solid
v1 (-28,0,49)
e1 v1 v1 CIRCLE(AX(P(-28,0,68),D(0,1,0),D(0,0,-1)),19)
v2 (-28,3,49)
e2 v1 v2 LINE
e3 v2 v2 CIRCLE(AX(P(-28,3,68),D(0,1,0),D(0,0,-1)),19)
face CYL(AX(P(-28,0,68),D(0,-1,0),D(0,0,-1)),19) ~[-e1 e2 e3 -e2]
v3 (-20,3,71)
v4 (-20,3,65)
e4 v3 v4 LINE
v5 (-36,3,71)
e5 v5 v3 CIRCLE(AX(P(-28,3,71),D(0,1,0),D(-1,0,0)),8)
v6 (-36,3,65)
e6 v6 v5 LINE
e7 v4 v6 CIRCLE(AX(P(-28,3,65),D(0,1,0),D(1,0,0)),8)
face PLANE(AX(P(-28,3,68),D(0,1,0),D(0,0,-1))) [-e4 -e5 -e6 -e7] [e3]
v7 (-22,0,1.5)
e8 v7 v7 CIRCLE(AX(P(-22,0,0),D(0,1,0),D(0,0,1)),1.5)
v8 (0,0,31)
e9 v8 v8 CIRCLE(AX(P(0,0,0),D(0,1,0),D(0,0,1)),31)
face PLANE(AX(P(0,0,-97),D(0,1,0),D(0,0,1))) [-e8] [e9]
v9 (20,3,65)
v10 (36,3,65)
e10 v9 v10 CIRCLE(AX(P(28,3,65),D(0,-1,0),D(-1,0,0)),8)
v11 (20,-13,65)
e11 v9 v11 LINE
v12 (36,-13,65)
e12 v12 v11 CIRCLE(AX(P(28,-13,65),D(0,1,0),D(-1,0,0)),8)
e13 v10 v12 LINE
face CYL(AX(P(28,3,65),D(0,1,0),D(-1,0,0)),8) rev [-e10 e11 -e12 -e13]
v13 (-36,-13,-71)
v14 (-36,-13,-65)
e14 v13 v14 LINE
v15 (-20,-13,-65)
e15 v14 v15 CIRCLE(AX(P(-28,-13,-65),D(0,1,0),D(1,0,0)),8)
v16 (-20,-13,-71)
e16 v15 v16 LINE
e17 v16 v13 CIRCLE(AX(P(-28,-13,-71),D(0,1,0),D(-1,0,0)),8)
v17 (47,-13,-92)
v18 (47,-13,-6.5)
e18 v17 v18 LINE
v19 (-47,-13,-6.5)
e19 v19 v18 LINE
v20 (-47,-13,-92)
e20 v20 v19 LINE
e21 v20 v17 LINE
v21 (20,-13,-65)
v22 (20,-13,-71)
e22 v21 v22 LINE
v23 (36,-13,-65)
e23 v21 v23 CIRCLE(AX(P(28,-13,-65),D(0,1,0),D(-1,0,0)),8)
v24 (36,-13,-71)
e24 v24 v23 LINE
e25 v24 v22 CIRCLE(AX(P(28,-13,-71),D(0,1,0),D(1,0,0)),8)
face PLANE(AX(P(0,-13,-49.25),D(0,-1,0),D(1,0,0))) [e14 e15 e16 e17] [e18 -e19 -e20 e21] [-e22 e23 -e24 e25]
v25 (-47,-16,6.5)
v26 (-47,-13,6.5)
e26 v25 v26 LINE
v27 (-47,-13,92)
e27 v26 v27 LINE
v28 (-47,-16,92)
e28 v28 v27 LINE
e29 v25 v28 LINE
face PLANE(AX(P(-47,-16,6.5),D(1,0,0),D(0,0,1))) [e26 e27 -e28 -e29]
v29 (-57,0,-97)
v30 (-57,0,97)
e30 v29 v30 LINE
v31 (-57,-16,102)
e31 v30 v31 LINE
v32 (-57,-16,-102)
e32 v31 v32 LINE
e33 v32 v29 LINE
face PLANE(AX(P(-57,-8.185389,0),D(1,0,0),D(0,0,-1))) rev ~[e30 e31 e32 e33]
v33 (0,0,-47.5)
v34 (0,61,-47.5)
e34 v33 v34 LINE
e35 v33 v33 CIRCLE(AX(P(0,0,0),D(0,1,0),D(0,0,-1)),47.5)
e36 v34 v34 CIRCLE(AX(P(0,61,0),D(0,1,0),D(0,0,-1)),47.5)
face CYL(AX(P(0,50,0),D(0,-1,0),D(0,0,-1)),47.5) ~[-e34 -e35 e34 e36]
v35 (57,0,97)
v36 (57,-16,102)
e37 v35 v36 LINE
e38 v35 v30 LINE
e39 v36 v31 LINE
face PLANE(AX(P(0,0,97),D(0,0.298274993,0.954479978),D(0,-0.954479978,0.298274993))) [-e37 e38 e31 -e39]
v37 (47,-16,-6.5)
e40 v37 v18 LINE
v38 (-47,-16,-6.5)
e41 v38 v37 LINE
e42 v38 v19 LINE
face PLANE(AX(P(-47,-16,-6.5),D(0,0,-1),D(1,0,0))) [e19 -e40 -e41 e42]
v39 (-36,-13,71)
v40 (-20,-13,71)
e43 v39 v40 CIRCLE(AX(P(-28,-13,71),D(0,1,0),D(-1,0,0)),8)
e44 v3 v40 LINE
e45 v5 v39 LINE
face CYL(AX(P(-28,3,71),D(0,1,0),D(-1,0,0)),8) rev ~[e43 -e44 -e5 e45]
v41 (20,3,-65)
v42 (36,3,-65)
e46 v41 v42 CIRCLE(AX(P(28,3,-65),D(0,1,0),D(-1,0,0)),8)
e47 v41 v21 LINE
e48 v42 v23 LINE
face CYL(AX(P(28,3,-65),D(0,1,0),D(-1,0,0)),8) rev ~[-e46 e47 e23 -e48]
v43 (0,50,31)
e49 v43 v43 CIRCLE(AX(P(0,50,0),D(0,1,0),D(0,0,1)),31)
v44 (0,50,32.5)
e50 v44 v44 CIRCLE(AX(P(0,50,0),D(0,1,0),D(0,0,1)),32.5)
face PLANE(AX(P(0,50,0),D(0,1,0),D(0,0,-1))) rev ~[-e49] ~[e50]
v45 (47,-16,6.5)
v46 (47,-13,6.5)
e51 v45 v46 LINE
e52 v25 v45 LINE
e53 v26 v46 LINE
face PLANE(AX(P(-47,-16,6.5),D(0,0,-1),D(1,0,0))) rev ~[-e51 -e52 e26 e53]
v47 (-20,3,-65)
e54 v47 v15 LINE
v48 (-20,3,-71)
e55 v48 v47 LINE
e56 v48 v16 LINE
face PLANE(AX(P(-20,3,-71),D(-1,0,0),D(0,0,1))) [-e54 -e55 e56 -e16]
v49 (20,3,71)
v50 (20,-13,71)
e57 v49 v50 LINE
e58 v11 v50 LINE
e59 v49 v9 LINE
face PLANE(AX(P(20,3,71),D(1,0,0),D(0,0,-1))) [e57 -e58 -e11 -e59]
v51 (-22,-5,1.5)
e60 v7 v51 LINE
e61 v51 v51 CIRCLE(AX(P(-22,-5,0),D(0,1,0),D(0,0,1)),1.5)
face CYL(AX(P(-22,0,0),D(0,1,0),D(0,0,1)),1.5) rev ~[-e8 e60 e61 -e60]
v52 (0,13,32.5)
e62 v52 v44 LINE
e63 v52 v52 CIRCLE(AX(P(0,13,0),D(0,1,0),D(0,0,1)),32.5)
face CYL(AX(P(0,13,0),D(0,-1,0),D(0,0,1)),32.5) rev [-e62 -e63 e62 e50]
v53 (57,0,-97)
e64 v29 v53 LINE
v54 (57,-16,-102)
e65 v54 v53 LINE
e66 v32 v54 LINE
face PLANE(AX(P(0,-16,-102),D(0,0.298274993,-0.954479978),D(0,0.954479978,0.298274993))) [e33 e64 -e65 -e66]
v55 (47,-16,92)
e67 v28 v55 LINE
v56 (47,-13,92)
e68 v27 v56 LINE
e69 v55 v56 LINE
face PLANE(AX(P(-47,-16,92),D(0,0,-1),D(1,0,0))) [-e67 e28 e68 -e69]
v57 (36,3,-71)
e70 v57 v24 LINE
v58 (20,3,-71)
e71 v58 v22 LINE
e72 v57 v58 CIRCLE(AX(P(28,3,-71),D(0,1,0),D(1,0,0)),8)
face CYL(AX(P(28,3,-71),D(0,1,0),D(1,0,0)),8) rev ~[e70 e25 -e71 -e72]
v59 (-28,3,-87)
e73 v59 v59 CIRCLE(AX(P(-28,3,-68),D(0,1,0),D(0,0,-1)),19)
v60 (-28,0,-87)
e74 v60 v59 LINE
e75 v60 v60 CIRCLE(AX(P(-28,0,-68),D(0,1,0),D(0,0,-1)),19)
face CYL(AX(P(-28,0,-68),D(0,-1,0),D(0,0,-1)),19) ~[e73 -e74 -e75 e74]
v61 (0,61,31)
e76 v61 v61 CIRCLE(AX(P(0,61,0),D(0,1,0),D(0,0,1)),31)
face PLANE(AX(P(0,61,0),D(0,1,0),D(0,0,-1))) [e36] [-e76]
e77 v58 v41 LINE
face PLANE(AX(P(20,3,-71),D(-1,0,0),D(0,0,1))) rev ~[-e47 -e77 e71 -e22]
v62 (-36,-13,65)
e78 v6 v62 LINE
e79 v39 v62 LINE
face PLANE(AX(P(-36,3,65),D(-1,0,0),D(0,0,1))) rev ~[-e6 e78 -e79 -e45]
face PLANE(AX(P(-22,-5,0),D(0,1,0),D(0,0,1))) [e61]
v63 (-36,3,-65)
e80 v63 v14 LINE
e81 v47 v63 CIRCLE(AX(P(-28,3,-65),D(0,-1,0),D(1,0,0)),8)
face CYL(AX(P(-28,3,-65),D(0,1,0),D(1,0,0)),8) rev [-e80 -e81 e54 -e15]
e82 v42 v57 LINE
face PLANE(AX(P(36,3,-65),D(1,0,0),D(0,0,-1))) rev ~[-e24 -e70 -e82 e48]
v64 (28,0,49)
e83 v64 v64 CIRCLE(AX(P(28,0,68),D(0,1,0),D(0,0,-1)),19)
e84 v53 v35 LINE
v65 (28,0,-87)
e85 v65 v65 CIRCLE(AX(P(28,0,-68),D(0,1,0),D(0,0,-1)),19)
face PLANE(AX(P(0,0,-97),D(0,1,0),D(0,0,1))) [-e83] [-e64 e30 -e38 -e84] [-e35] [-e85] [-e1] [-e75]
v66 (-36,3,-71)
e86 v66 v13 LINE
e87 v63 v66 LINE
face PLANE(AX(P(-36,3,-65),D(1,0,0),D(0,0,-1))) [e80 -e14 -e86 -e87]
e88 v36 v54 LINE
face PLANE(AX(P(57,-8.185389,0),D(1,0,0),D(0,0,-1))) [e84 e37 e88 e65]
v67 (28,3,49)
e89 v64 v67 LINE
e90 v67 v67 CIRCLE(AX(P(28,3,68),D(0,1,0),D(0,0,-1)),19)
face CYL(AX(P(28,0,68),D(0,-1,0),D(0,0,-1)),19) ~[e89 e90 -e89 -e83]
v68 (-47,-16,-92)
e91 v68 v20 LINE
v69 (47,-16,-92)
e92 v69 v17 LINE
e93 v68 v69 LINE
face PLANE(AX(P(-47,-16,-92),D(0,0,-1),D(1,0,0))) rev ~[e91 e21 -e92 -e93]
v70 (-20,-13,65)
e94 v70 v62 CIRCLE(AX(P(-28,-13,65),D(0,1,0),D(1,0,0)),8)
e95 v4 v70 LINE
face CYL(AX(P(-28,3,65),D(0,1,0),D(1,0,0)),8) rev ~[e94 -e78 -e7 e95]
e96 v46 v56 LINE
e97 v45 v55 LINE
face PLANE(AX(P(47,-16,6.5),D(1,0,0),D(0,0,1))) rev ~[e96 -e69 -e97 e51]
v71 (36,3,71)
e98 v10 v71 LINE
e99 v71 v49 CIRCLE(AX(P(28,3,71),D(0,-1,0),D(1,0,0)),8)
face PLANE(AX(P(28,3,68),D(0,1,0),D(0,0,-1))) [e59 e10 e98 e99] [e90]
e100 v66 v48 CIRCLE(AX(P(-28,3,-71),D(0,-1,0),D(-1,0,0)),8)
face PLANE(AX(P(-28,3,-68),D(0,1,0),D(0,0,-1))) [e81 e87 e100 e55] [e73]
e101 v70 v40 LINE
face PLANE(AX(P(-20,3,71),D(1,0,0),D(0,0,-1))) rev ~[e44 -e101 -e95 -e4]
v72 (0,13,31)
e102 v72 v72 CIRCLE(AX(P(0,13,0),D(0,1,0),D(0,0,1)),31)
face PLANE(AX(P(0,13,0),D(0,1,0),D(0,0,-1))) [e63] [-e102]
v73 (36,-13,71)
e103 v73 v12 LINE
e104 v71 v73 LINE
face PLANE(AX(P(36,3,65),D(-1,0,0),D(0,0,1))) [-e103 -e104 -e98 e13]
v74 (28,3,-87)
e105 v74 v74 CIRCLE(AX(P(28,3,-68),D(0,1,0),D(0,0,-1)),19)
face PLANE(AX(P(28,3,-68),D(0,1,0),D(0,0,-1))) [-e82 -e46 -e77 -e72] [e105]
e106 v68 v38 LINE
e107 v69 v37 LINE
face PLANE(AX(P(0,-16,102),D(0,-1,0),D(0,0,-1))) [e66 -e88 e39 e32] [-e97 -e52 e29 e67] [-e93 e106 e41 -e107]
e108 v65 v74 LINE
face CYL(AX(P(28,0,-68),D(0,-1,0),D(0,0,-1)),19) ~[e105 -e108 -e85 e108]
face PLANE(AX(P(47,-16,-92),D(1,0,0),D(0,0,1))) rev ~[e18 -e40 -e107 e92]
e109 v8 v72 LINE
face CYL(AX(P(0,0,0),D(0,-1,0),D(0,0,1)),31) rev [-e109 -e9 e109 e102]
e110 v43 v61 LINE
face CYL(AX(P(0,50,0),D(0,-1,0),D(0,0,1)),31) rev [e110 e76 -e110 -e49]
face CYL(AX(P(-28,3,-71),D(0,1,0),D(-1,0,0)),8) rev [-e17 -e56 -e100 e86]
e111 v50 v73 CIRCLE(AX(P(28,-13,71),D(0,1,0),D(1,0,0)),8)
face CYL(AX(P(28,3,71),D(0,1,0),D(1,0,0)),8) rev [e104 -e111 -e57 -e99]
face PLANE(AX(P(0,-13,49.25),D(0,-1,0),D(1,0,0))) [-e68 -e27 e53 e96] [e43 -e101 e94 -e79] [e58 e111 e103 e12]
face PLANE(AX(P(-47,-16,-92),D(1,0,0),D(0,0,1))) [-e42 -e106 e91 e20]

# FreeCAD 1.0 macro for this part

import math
import FreeCAD as App
import Part
import Sketcher

V = App.Vector

doc = App.newDocument("Part")
body = doc.addObject("PartDesign::Body", "Body")

# Sketch on YZ plane
sketch1 = doc.addObject("Sketcher::SketchObject", "Sketch")
body.addObject(sketch1)
sketch1.AttachmentSupport = (doc.YZ_Plane, [""])
sketch1.MapMode = "FlatFace"
sketch1.addGeometry(Part.LineSegment(V(-16, 102, 0), V(-16, -102, 0)), False)
sketch1.addGeometry(Part.LineSegment(V(-16, -102, 0), V(0, -97, 0)), False)
sketch1.addGeometry(Part.LineSegment(V(0, -97, 0), V(0, 97, 0)), False)
sketch1.addGeometry(Part.LineSegment(V(0, 97, 0), V(-16, 102, 0)), False)
sketch1.addConstraint(Sketcher.Constraint("Coincident", 0, 2, 1, 1))
sketch1.addConstraint(Sketcher.Constraint("Coincident", 1, 2, 2, 1))
sketch1.addConstraint(Sketcher.Constraint("Coincident", 2, 2, 3, 1))
sketch1.addConstraint(Sketcher.Constraint("Coincident", 3, 2, 0, 1))
sketch1.addConstraint(Sketcher.Constraint("Vertical", 0))
sketch1.addConstraint(Sketcher.Constraint("Vertical", 2))
sketch1.addConstraint(Sketcher.Constraint("Symmetric", 1, 2, 2, 2, -1, 1))
sketch1.addConstraint(Sketcher.Constraint("Equal", 1, 3))
sketch1.addConstraint(Sketcher.Constraint("DistanceY", 0, 2, 0, 1, 204.0))
sketch1.addConstraint(Sketcher.Constraint("DistanceY", 2, 1, 2, 2, 194.0))
sketch1.addConstraint(Sketcher.Constraint("DistanceX", 0, 2, -1, 1, 16.0))
pad1 = doc.addObject("PartDesign::Pad", "Pad")
body.addObject(pad1)
pad1.Profile = sketch1
pad1.Length = 114
pad1.Midplane = True

# Sketch on XZ plane
sketch2 = doc.addObject("Sketcher::SketchObject", "Sketch001")
body.addObject(sketch2)
sketch2.AttachmentSupport = (doc.XZ_Plane, [""])
sketch2.MapMode = "FlatFace"
sketch2.addGeometry(Part.Circle(V(0, 0, 0), V(0, 0, 1), 47.5), False)
sketch2.addGeometry(Part.Circle(V(0, 0, 0), V(0, 0, 1), 31), False)
sketch2.addConstraint(Sketcher.Constraint("Coincident", 0, 3, -1, 1))
sketch2.addConstraint(Sketcher.Constraint("Coincident", 1, 3, -1, 1))
sketch2.addConstraint(Sketcher.Constraint("Diameter", 0, 95.0))
sketch2.addConstraint(Sketcher.Constraint("Diameter", 1, 62.0))
pad2 = doc.addObject("PartDesign::Pad", "Pad001")
body.addObject(pad2)
pad2.Profile = sketch2
pad2.Length = 13
pad2.Reversed = True

# Sketch on XZ plane
sketch3 = doc.addObject("Sketcher::SketchObject", "Sketch002")
body.addObject(sketch3)
sketch3.AttachmentSupport = (doc.XZ_Plane, [""])
sketch3.MapMode = "FlatFace"
sketch3.AttachmentOffset = App.Placement(V(0, 0, -13), App.Rotation())
sketch3.addGeometry(Part.Circle(V(0, 0, 0), V(0, 0, 1), 47.5), False)
sketch3.addGeometry(Part.Circle(V(0, 0, 0), V(0, 0, 1), 32.5), False)
sketch3.addConstraint(Sketcher.Constraint("Coincident", 0, 3, -1, 1))
sketch3.addConstraint(Sketcher.Constraint("Coincident", 1, 3, -1, 1))
sketch3.addConstraint(Sketcher.Constraint("Diameter", 0, 95.0))
sketch3.addConstraint(Sketcher.Constraint("Diameter", 1, 65.0))
pad3 = doc.addObject("PartDesign::Pad", "Pad002")
body.addObject(pad3)
pad3.Profile = sketch3
pad3.Length = 37
pad3.Reversed = True

# Sketch on XZ plane
sketch4 = doc.addObject("Sketcher::SketchObject", "Sketch003")
body.addObject(sketch4)
sketch4.AttachmentSupport = (doc.XZ_Plane, [""])
sketch4.MapMode = "FlatFace"
sketch4.AttachmentOffset = App.Placement(V(0, 0, -50), App.Rotation())
sketch4.addGeometry(Part.Circle(V(0, 0, 0), V(0, 0, 1), 47.5), False)
sketch4.addGeometry(Part.Circle(V(0, 0, 0), V(0, 0, 1), 31), False)
sketch4.addConstraint(Sketcher.Constraint("Coincident", 0, 3, -1, 1))
sketch4.addConstraint(Sketcher.Constraint("Coincident", 1, 3, -1, 1))
sketch4.addConstraint(Sketcher.Constraint("Diameter", 0, 95.0))
sketch4.addConstraint(Sketcher.Constraint("Diameter", 1, 62.0))
pad4 = doc.addObject("PartDesign::Pad", "Pad003")
body.addObject(pad4)
pad4.Profile = sketch4
pad4.Length = 11
pad4.Reversed = True

# Sketch on XZ plane
sketch5 = doc.addObject("Sketcher::SketchObject", "Sketch004")
body.addObject(sketch5)
sketch5.AttachmentSupport = (doc.XZ_Plane, [""])
sketch5.MapMode = "FlatFace"
sketch5.AttachmentOffset = App.Placement(V(0, 0, 16), App.Rotation())
sketch5.addGeometry(Part.LineSegment(V(-47, 92, 0), V(-47, 6.5, 0)), False)
sketch5.addGeometry(Part.LineSegment(V(-47, 6.5, 0), V(47, 6.5, 0)), False)
sketch5.addGeometry(Part.LineSegment(V(47, 6.5, 0), V(47, 92, 0)), False)
sketch5.addGeometry(Part.LineSegment(V(47, 92, 0), V(-47, 92, 0)), False)
sketch5.addGeometry(Part.LineSegment(V(-47, -6.5, 0), V(-47, -92, 0)), False)
sketch5.addGeometry(Part.LineSegment(V(-47, -92, 0), V(47, -92, 0)), False)
sketch5.addGeometry(Part.LineSegment(V(47, -92, 0), V(47, -6.5, 0)), False)
sketch5.addGeometry(Part.LineSegment(V(47, -6.5, 0), V(-47, -6.5, 0)), False)
sketch5.addConstraint(Sketcher.Constraint("Coincident", 0, 2, 1, 1))
sketch5.addConstraint(Sketcher.Constraint("Coincident", 1, 2, 2, 1))
sketch5.addConstraint(Sketcher.Constraint("Coincident", 2, 2, 3, 1))
sketch5.addConstraint(Sketcher.Constraint("Coincident", 3, 2, 0, 1))
sketch5.addConstraint(Sketcher.Constraint("Coincident", 4, 2, 5, 1))
sketch5.addConstraint(Sketcher.Constraint("Coincident", 5, 2, 6, 1))
sketch5.addConstraint(Sketcher.Constraint("Coincident", 6, 2, 7, 1))
sketch5.addConstraint(Sketcher.Constraint("Coincident", 7, 2, 4, 1))
sketch5.addConstraint(Sketcher.Constraint("Vertical", 0))
sketch5.addConstraint(Sketcher.Constraint("Horizontal", 1))
sketch5.addConstraint(Sketcher.Constraint("Vertical", 2))
sketch5.addConstraint(Sketcher.Constraint("Horizontal", 3))
sketch5.addConstraint(Sketcher.Constraint("Vertical", 4))
sketch5.addConstraint(Sketcher.Constraint("Horizontal", 5))
sketch5.addConstraint(Sketcher.Constraint("Vertical", 6))
sketch5.addConstraint(Sketcher.Constraint("Horizontal", 7))
sketch5.addConstraint(Sketcher.Constraint("Symmetric", 2, 2, 4, 2, -1, 1))
sketch5.addConstraint(Sketcher.Constraint("Symmetric", 0, 2, 6, 2, -1, 1))
sketch5.addConstraint(Sketcher.Constraint("Vertical", 3, 2, 4, 2))
sketch5.addConstraint(Sketcher.Constraint("DistanceX", 1, 1, 1, 2, 94.0))
sketch5.addConstraint(Sketcher.Constraint("DistanceY", 0, 2, 0, 1, 85.5))
sketch5.addConstraint(Sketcher.Constraint("DistanceY", -1, 1, 2, 2, 92.0))
pocket1 = doc.addObject("PartDesign::Pocket", "Pocket")
body.addObject(pocket1)
pocket1.Profile = sketch5
pocket1.Length = 3

# Sketch on XZ plane
sketch6 = doc.addObject("Sketcher::SketchObject", "Sketch005")
body.addObject(sketch6)
sketch6.AttachmentSupport = (doc.XZ_Plane, [""])
sketch6.MapMode = "FlatFace"
sketch6.addGeometry(Part.Circle(V(-28, 68, 0), V(0, 0, 1), 19), False)
sketch6.addGeometry(Part.Circle(V(28, 68, 0), V(0, 0, 1), 19), False)
sketch6.addGeometry(Part.Circle(V(28, -68, 0), V(0, 0, 1), 19), False)
sketch6.addGeometry(Part.Circle(V(-28, -68, 0), V(0, 0, 1), 19), False)
sketch6.addConstraint(Sketcher.Constraint("Equal", 0, 1))
sketch6.addConstraint(Sketcher.Constraint("Equal", 1, 2))
sketch6.addConstraint(Sketcher.Constraint("Equal", 2, 3))
sketch6.addConstraint(Sketcher.Constraint("Symmetric", 0, 3, 2, 3, -1, 1))
sketch6.addConstraint(Sketcher.Constraint("Symmetric", 1, 3, 3, 3, -1, 1))
sketch6.addConstraint(Sketcher.Constraint("Symmetric", 0, 3, 1, 3, -2))
sketch6.addConstraint(Sketcher.Constraint("Diameter", 0, 38.0))
sketch6.addConstraint(Sketcher.Constraint("DistanceX", 0, 3, -1, 1, 28.0))
sketch6.addConstraint(Sketcher.Constraint("DistanceY", -1, 1, 0, 3, 68.0))
pad5 = doc.addObject("PartDesign::Pad", "Pad004")
body.addObject(pad5)
pad5.Profile = sketch6
pad5.Length = 3
pad5.Reversed = True

# Sketch on XZ plane
sketch7 = doc.addObject("Sketcher::SketchObject", "Sketch006")
body.addObject(sketch7)
sketch7.AttachmentSupport = (doc.XZ_Plane, [""])
sketch7.MapMode = "FlatFace"
sketch7.AttachmentOffset = App.Placement(V(0, 0, -3), App.Rotation())
sketch7.addGeometry(Part.LineSegment(V(36, 71, 0), V(36, 65, 0)), False)
sketch7.addGeometry(Part.ArcOfCircle(Part.Circle(V(28, 65, 0), V(0, 0, 1), 8), math.radians(180), math.radians(360)), False)
sketch7.addGeometry(Part.LineSegment(V(20, 65, 0), V(20, 71, 0)), False)
sketch7.addGeometry(Part.ArcOfCircle(Part.Circle(V(28, 71, 0), V(0, 0, 1), 8), math.radians(0), math.radians(180)), False)
sketch7.addGeometry(Part.LineSegment(V(-36, 65, 0), V(-36, 71, 0)), False)
sketch7.addGeometry(Part.ArcOfCircle(Part.Circle(V(-28, 71, 0), V(0, 0, 1), 8), math.radians(0), math.radians(180)), False)
sketch7.addGeometry(Part.LineSegment(V(-20, 71, 0), V(-20, 65, 0)), False)
sketch7.addGeometry(Part.ArcOfCircle(Part.Circle(V(-28, 65, 0), V(0, 0, 1), 8), math.radians(180), math.radians(360)), False)
sketch7.addGeometry(Part.LineSegment(V(36, -65, 0), V(36, -71, 0)), False)
sketch7.addGeometry(Part.ArcOfCircle(Part.Circle(V(28, -71, 0), V(0, 0, 1), 8), math.radians(180), math.radians(360)), False)
sketch7.addGeometry(Part.LineSegment(V(20, -71, 0), V(20, -65, 0)), False)
sketch7.addGeometry(Part.ArcOfCircle(Part.Circle(V(28, -65, 0), V(0, 0, 1), 8), math.radians(0), math.radians(180)), False)
sketch7.addGeometry(Part.LineSegment(V(-36, -71, 0), V(-36, -65, 0)), False)
sketch7.addGeometry(Part.ArcOfCircle(Part.Circle(V(-28, -65, 0), V(0, 0, 1), 8), math.radians(0), math.radians(180)), False)
sketch7.addGeometry(Part.LineSegment(V(-20, -65, 0), V(-20, -71, 0)), False)
sketch7.addGeometry(Part.ArcOfCircle(Part.Circle(V(-28, -71, 0), V(0, 0, 1), 8), math.radians(180), math.radians(360)), False)
sketch7.addConstraint(Sketcher.Constraint("Tangent", 0, 2, 1, 2))
sketch7.addConstraint(Sketcher.Constraint("Tangent", 1, 1, 2, 1))
sketch7.addConstraint(Sketcher.Constraint("Tangent", 2, 2, 3, 2))
sketch7.addConstraint(Sketcher.Constraint("Tangent", 3, 1, 0, 1))
sketch7.addConstraint(Sketcher.Constraint("Tangent", 4, 2, 5, 2))
sketch7.addConstraint(Sketcher.Constraint("Tangent", 5, 1, 6, 1))
sketch7.addConstraint(Sketcher.Constraint("Tangent", 6, 2, 7, 2))
sketch7.addConstraint(Sketcher.Constraint("Tangent", 7, 1, 4, 1))
sketch7.addConstraint(Sketcher.Constraint("Tangent", 8, 2, 9, 2))
sketch7.addConstraint(Sketcher.Constraint("Tangent", 9, 1, 10, 1))
sketch7.addConstraint(Sketcher.Constraint("Tangent", 10, 2, 11, 2))
sketch7.addConstraint(Sketcher.Constraint("Tangent", 11, 1, 8, 1))
sketch7.addConstraint(Sketcher.Constraint("Tangent", 12, 2, 13, 2))
sketch7.addConstraint(Sketcher.Constraint("Tangent", 13, 1, 14, 1))
sketch7.addConstraint(Sketcher.Constraint("Tangent", 14, 2, 15, 2))
sketch7.addConstraint(Sketcher.Constraint("Tangent", 15, 1, 12, 1))
sketch7.addConstraint(Sketcher.Constraint("Vertical", 0))
sketch7.addConstraint(Sketcher.Constraint("Vertical", 2))
sketch7.addConstraint(Sketcher.Constraint("Vertical", 4))
sketch7.addConstraint(Sketcher.Constraint("Vertical", 6))
sketch7.addConstraint(Sketcher.Constraint("Vertical", 8))
sketch7.addConstraint(Sketcher.Constraint("Vertical", 10))
sketch7.addConstraint(Sketcher.Constraint("Vertical", 12))
sketch7.addConstraint(Sketcher.Constraint("Vertical", 14))
sketch7.addConstraint(Sketcher.Constraint("Equal", 3, 5))
sketch7.addConstraint(Sketcher.Constraint("Equal", 7, 9))
sketch7.addConstraint(Sketcher.Constraint("Equal", 11, 13))
sketch7.addConstraint(Sketcher.Constraint("Symmetric", 5, 3, 9, 3, -1, 1))
sketch7.addConstraint(Sketcher.Constraint("Symmetric", 1, 3, 13, 3, -1, 1))
sketch7.addConstraint(Sketcher.Constraint("Symmetric", 3, 3, 5, 3, -2))
sketch7.addConstraint(Sketcher.Constraint("Horizontal", 1, 3, 7, 3))
sketch7.addConstraint(Sketcher.Constraint("Horizontal", 11, 3, 13, 3))
sketch7.addConstraint(Sketcher.Constraint("Horizontal", 9, 3, 15, 3))
sketch7.addConstraint(Sketcher.Constraint("Radius", 1, 8.0))
sketch7.addConstraint(Sketcher.Constraint("DistanceY", 0, 2, 0, 1, 6.0))
sketch7.addConstraint(Sketcher.Constraint("DistanceX", -1, 1, 1, 3, 28.0))
sketch7.addConstraint(Sketcher.Constraint("DistanceY", -1, 1, 1, 3, 65.0))
pocket2 = doc.addObject("PartDesign::Pocket", "Pocket001")
body.addObject(pocket2)
pocket2.Profile = sketch7
pocket2.Type = "ThroughAll"
pocket2.Reversed = True

# Sketch on XZ plane
sketch8 = doc.addObject("Sketcher::SketchObject", "Sketch007")
body.addObject(sketch8)
sketch8.AttachmentSupport = (doc.XZ_Plane, [""])
sketch8.MapMode = "FlatFace"
sketch8.addGeometry(Part.Circle(V(-22, 0, 0), V(0, 0, 1), 1.5), False)
sketch8.addConstraint(Sketcher.Constraint("PointOnObject", 0, 3, -1))
sketch8.addConstraint(Sketcher.Constraint("Diameter", 0, 3.0))
sketch8.addConstraint(Sketcher.Constraint("DistanceX", 0, 3, -1, 1, 22.0))
pocket3 = doc.addObject("PartDesign::Pocket", "Pocket002")
body.addObject(pocket3)
pocket3.Profile = sketch8
pocket3.Length = 5
pocket3.Reversed = True

doc.recompute()
